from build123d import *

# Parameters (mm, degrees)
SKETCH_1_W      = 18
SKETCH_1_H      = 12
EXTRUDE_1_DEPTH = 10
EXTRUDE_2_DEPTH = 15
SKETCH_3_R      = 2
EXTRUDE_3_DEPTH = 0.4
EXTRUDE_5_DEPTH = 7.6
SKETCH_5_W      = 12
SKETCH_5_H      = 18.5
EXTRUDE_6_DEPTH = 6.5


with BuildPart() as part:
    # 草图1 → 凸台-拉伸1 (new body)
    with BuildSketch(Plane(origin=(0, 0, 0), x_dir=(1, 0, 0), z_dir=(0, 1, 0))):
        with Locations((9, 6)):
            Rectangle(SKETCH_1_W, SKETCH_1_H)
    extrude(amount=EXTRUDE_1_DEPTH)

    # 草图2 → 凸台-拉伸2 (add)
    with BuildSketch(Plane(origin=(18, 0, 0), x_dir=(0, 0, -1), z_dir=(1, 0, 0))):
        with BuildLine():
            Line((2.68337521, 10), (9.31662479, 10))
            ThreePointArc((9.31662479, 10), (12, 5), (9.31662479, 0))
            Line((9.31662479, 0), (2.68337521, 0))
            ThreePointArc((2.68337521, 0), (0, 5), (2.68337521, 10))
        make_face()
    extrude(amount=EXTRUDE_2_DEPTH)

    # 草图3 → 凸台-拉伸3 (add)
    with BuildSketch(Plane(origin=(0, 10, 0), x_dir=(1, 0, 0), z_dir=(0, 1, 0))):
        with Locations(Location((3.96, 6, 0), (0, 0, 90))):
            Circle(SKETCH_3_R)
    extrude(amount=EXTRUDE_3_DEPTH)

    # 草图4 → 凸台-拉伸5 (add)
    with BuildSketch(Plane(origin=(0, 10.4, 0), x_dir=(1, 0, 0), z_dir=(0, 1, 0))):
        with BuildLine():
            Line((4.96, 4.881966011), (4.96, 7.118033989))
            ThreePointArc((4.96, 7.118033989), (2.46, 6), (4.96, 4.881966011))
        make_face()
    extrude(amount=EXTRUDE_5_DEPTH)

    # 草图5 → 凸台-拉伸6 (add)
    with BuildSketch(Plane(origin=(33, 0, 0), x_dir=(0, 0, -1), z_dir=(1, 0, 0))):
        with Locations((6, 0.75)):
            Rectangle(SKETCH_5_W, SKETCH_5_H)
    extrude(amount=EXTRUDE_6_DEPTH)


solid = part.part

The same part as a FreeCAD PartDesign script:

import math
import FreeCAD as App
import Part
import Sketcher


def add_polygon(sketch, points):
    """Adds a closed chain of lines whose ends are joined by coincident constraints."""
    first, n = sketch.GeometryCount, len(points)
    for a, b in zip(points, points[1:] + points[:1]):
        sketch.addGeometry(Part.LineSegment(App.Vector(*a, 0), App.Vector(*b, 0)), False)
    for i in range(n):
        sketch.addConstraint(Sketcher.Constraint("Coincident", first + i, 2, first + (i + 1) % n, 1))

doc = App.newDocument("Part")
body = doc.addObject("PartDesign::Body", "Body")

sketch1 = body.newObject("Sketcher::SketchObject", "Sketch")
sketch1.AttachmentSupport = (doc.getObject("XZ_Plane"), [""])
sketch1.MapMode = "FlatFace"
add_polygon(sketch1, [(0, -12), (0, 0), (18, 0), (18, -12)])
sketch1.addConstraint([
    Sketcher.Constraint("Vertical", 0),
    Sketcher.Constraint("Horizontal", 1),
    Sketcher.Constraint("Vertical", 2),
    Sketcher.Constraint("Horizontal", 3),
    Sketcher.Constraint("Coincident", 0, 2, -1, 1),
    Sketcher.Constraint("DistanceX", 1, 1, 1, 2, 18.0),
    Sketcher.Constraint("DistanceY", 0, 1, 0, 2, 12.0),
])
pad1 = body.newObject("PartDesign::Pad", "Pad")
pad1.Profile = sketch1
pad1.Length = 10
pad1.Reversed = True

sketch2 = body.newObject("Sketcher::SketchObject", "Sketch001")
sketch2.AttachmentSupport = (doc.getObject("YZ_Plane"), [""])
sketch2.MapMode = "FlatFace"
sketch2.AttachmentOffset = App.Placement(App.Vector(0, 0, 18), App.Rotation())
sketch2.addGeometry([
    Part.LineSegment(App.Vector(10, -9, 0), App.Vector(10, -3, 0)),
    Part.ArcOfCircle(Part.Circle(App.Vector(5, -6, 0), App.Vector(0, 0, 1), 6), math.radians(34), math.radians(146)),
    Part.LineSegment(App.Vector(0, -3, 0), App.Vector(0, -9, 0)),
    Part.ArcOfCircle(Part.Circle(App.Vector(5, -6, 0), App.Vector(0, 0, 1), 6), math.radians(-146), math.radians(-34)),
], False)
sketch2.addConstraint([
    Sketcher.Constraint("Coincident", 0, 2, 1, 1),
    Sketcher.Constraint("Coincident", 1, 2, 2, 1),
    Sketcher.Constraint("Coincident", 2, 2, 3, 1),
    Sketcher.Constraint("Coincident", 3, 2, 0, 1),
    Sketcher.Constraint("Vertical", 0),
    Sketcher.Constraint("Vertical", 2),
    Sketcher.Constraint("Coincident", 3, 3, 1, 3),
    Sketcher.Constraint("Equal", 1, 3),
    Sketcher.Constraint("PointOnObject", 1, 2, -2),
    Sketcher.Constraint("Horizontal", 0, 2, 1, 2),
    Sketcher.Constraint("Radius", 1, 6.0),
    Sketcher.Constraint("DistanceX", -1, 1, 1, 3, 5.0),
    Sketcher.Constraint("DistanceY", 1, 3, -1, 1, 6.0),
])
pad2 = body.newObject("PartDesign::Pad", "Pad001")
pad2.Profile = sketch2
pad2.Length = 15

sketch3 = body.newObject("Sketcher::SketchObject", "Sketch002")
sketch3.AttachmentSupport = (doc.getObject("XZ_Plane"), [""])
sketch3.MapMode = "FlatFace"
sketch3.AttachmentOffset = App.Placement(App.Vector(0, 0, -10), App.Rotation())
sketch3.addGeometry(Part.Circle(App.Vector(4, -6, 0), App.Vector(0, 0, 1), 2), False)
sketch3.addConstraint([
    Sketcher.Constraint("Diameter", 0, 4.0),
    Sketcher.Constraint("DistanceY", 0, 3, -1, 1, 6.0),
    Sketcher.Constraint("DistanceX", -1, 1, 0, 3, 3.96),
])
pad3 = body.newObject("PartDesign::Pad", "Pad002")
pad3.Profile = sketch3
pad3.Length = 0.4
pad3.Reversed = True

sketch4 = body.newObject("Sketcher::SketchObject", "Sketch003")
sketch4.AttachmentSupport = (doc.getObject("XZ_Plane"), [""])
sketch4.MapMode = "FlatFace"
sketch4.AttachmentOffset = App.Placement(App.Vector(0, 0, -10.4), App.Rotation())
sketch4.addGeometry([
    Part.LineSegment(App.Vector(5, -4.9, 0), App.Vector(5, -7.1, 0)),
    Part.ArcOfCircle(Part.Circle(App.Vector(4, -6, 0), App.Vector(0, 0, 1), 1.5), math.radians(48), math.radians(312)),
], False)
sketch4.addConstraint([
    Sketcher.Constraint("Coincident", 0, 1, 1, 1),
    Sketcher.Constraint("Coincident", 1, 2, 0, 2),
    Sketcher.Constraint("Vertical", 0),
    Sketcher.Constraint("Radius", 1, 1.5),
    Sketcher.Constraint("DistanceY", 1, 3, -1, 1, 6.0),
    Sketcher.Constraint("DistanceX", 1, 3, 0, 1, 1.0),
    Sketcher.Constraint("DistanceX", -1, 1, 1, 3, 3.96),
])
pad4 = body.newObject("PartDesign::Pad", "Pad003")
pad4.Profile = sketch4
pad4.Length = 7.6
pad4.Reversed = True

sketch5 = body.newObject("Sketcher::SketchObject", "Sketch004")
sketch5.AttachmentSupport = (doc.getObject("YZ_Plane"), [""])
sketch5.MapMode = "FlatFace"
sketch5.AttachmentOffset = App.Placement(App.Vector(0, 0, 33), App.Rotation())
add_polygon(sketch5, [(10, 0), (-8, 0), (-8, -12), (10, -12)])
sketch5.addConstraint([
    Sketcher.Constraint("Horizontal", 0),
    Sketcher.Constraint("Vertical", 1),
    Sketcher.Constraint("Horizontal", 2),
    Sketcher.Constraint("Vertical", 3),
    Sketcher.Constraint("PointOnObject", 0, 2, -1),
    Sketcher.Constraint("DistanceY", 1, 2, 1, 1, 12.0),
    Sketcher.Constraint("DistanceX", 0, 2, 0, 1, 18.5),
    Sketcher.Constraint("DistanceX", -1, 1, 2, 2, 10.0),
])
pad5 = body.newObject("PartDesign::Pad", "Pad004")
pad5.Profile = sketch5
pad5.Length = 6.5

doc.recompute()
